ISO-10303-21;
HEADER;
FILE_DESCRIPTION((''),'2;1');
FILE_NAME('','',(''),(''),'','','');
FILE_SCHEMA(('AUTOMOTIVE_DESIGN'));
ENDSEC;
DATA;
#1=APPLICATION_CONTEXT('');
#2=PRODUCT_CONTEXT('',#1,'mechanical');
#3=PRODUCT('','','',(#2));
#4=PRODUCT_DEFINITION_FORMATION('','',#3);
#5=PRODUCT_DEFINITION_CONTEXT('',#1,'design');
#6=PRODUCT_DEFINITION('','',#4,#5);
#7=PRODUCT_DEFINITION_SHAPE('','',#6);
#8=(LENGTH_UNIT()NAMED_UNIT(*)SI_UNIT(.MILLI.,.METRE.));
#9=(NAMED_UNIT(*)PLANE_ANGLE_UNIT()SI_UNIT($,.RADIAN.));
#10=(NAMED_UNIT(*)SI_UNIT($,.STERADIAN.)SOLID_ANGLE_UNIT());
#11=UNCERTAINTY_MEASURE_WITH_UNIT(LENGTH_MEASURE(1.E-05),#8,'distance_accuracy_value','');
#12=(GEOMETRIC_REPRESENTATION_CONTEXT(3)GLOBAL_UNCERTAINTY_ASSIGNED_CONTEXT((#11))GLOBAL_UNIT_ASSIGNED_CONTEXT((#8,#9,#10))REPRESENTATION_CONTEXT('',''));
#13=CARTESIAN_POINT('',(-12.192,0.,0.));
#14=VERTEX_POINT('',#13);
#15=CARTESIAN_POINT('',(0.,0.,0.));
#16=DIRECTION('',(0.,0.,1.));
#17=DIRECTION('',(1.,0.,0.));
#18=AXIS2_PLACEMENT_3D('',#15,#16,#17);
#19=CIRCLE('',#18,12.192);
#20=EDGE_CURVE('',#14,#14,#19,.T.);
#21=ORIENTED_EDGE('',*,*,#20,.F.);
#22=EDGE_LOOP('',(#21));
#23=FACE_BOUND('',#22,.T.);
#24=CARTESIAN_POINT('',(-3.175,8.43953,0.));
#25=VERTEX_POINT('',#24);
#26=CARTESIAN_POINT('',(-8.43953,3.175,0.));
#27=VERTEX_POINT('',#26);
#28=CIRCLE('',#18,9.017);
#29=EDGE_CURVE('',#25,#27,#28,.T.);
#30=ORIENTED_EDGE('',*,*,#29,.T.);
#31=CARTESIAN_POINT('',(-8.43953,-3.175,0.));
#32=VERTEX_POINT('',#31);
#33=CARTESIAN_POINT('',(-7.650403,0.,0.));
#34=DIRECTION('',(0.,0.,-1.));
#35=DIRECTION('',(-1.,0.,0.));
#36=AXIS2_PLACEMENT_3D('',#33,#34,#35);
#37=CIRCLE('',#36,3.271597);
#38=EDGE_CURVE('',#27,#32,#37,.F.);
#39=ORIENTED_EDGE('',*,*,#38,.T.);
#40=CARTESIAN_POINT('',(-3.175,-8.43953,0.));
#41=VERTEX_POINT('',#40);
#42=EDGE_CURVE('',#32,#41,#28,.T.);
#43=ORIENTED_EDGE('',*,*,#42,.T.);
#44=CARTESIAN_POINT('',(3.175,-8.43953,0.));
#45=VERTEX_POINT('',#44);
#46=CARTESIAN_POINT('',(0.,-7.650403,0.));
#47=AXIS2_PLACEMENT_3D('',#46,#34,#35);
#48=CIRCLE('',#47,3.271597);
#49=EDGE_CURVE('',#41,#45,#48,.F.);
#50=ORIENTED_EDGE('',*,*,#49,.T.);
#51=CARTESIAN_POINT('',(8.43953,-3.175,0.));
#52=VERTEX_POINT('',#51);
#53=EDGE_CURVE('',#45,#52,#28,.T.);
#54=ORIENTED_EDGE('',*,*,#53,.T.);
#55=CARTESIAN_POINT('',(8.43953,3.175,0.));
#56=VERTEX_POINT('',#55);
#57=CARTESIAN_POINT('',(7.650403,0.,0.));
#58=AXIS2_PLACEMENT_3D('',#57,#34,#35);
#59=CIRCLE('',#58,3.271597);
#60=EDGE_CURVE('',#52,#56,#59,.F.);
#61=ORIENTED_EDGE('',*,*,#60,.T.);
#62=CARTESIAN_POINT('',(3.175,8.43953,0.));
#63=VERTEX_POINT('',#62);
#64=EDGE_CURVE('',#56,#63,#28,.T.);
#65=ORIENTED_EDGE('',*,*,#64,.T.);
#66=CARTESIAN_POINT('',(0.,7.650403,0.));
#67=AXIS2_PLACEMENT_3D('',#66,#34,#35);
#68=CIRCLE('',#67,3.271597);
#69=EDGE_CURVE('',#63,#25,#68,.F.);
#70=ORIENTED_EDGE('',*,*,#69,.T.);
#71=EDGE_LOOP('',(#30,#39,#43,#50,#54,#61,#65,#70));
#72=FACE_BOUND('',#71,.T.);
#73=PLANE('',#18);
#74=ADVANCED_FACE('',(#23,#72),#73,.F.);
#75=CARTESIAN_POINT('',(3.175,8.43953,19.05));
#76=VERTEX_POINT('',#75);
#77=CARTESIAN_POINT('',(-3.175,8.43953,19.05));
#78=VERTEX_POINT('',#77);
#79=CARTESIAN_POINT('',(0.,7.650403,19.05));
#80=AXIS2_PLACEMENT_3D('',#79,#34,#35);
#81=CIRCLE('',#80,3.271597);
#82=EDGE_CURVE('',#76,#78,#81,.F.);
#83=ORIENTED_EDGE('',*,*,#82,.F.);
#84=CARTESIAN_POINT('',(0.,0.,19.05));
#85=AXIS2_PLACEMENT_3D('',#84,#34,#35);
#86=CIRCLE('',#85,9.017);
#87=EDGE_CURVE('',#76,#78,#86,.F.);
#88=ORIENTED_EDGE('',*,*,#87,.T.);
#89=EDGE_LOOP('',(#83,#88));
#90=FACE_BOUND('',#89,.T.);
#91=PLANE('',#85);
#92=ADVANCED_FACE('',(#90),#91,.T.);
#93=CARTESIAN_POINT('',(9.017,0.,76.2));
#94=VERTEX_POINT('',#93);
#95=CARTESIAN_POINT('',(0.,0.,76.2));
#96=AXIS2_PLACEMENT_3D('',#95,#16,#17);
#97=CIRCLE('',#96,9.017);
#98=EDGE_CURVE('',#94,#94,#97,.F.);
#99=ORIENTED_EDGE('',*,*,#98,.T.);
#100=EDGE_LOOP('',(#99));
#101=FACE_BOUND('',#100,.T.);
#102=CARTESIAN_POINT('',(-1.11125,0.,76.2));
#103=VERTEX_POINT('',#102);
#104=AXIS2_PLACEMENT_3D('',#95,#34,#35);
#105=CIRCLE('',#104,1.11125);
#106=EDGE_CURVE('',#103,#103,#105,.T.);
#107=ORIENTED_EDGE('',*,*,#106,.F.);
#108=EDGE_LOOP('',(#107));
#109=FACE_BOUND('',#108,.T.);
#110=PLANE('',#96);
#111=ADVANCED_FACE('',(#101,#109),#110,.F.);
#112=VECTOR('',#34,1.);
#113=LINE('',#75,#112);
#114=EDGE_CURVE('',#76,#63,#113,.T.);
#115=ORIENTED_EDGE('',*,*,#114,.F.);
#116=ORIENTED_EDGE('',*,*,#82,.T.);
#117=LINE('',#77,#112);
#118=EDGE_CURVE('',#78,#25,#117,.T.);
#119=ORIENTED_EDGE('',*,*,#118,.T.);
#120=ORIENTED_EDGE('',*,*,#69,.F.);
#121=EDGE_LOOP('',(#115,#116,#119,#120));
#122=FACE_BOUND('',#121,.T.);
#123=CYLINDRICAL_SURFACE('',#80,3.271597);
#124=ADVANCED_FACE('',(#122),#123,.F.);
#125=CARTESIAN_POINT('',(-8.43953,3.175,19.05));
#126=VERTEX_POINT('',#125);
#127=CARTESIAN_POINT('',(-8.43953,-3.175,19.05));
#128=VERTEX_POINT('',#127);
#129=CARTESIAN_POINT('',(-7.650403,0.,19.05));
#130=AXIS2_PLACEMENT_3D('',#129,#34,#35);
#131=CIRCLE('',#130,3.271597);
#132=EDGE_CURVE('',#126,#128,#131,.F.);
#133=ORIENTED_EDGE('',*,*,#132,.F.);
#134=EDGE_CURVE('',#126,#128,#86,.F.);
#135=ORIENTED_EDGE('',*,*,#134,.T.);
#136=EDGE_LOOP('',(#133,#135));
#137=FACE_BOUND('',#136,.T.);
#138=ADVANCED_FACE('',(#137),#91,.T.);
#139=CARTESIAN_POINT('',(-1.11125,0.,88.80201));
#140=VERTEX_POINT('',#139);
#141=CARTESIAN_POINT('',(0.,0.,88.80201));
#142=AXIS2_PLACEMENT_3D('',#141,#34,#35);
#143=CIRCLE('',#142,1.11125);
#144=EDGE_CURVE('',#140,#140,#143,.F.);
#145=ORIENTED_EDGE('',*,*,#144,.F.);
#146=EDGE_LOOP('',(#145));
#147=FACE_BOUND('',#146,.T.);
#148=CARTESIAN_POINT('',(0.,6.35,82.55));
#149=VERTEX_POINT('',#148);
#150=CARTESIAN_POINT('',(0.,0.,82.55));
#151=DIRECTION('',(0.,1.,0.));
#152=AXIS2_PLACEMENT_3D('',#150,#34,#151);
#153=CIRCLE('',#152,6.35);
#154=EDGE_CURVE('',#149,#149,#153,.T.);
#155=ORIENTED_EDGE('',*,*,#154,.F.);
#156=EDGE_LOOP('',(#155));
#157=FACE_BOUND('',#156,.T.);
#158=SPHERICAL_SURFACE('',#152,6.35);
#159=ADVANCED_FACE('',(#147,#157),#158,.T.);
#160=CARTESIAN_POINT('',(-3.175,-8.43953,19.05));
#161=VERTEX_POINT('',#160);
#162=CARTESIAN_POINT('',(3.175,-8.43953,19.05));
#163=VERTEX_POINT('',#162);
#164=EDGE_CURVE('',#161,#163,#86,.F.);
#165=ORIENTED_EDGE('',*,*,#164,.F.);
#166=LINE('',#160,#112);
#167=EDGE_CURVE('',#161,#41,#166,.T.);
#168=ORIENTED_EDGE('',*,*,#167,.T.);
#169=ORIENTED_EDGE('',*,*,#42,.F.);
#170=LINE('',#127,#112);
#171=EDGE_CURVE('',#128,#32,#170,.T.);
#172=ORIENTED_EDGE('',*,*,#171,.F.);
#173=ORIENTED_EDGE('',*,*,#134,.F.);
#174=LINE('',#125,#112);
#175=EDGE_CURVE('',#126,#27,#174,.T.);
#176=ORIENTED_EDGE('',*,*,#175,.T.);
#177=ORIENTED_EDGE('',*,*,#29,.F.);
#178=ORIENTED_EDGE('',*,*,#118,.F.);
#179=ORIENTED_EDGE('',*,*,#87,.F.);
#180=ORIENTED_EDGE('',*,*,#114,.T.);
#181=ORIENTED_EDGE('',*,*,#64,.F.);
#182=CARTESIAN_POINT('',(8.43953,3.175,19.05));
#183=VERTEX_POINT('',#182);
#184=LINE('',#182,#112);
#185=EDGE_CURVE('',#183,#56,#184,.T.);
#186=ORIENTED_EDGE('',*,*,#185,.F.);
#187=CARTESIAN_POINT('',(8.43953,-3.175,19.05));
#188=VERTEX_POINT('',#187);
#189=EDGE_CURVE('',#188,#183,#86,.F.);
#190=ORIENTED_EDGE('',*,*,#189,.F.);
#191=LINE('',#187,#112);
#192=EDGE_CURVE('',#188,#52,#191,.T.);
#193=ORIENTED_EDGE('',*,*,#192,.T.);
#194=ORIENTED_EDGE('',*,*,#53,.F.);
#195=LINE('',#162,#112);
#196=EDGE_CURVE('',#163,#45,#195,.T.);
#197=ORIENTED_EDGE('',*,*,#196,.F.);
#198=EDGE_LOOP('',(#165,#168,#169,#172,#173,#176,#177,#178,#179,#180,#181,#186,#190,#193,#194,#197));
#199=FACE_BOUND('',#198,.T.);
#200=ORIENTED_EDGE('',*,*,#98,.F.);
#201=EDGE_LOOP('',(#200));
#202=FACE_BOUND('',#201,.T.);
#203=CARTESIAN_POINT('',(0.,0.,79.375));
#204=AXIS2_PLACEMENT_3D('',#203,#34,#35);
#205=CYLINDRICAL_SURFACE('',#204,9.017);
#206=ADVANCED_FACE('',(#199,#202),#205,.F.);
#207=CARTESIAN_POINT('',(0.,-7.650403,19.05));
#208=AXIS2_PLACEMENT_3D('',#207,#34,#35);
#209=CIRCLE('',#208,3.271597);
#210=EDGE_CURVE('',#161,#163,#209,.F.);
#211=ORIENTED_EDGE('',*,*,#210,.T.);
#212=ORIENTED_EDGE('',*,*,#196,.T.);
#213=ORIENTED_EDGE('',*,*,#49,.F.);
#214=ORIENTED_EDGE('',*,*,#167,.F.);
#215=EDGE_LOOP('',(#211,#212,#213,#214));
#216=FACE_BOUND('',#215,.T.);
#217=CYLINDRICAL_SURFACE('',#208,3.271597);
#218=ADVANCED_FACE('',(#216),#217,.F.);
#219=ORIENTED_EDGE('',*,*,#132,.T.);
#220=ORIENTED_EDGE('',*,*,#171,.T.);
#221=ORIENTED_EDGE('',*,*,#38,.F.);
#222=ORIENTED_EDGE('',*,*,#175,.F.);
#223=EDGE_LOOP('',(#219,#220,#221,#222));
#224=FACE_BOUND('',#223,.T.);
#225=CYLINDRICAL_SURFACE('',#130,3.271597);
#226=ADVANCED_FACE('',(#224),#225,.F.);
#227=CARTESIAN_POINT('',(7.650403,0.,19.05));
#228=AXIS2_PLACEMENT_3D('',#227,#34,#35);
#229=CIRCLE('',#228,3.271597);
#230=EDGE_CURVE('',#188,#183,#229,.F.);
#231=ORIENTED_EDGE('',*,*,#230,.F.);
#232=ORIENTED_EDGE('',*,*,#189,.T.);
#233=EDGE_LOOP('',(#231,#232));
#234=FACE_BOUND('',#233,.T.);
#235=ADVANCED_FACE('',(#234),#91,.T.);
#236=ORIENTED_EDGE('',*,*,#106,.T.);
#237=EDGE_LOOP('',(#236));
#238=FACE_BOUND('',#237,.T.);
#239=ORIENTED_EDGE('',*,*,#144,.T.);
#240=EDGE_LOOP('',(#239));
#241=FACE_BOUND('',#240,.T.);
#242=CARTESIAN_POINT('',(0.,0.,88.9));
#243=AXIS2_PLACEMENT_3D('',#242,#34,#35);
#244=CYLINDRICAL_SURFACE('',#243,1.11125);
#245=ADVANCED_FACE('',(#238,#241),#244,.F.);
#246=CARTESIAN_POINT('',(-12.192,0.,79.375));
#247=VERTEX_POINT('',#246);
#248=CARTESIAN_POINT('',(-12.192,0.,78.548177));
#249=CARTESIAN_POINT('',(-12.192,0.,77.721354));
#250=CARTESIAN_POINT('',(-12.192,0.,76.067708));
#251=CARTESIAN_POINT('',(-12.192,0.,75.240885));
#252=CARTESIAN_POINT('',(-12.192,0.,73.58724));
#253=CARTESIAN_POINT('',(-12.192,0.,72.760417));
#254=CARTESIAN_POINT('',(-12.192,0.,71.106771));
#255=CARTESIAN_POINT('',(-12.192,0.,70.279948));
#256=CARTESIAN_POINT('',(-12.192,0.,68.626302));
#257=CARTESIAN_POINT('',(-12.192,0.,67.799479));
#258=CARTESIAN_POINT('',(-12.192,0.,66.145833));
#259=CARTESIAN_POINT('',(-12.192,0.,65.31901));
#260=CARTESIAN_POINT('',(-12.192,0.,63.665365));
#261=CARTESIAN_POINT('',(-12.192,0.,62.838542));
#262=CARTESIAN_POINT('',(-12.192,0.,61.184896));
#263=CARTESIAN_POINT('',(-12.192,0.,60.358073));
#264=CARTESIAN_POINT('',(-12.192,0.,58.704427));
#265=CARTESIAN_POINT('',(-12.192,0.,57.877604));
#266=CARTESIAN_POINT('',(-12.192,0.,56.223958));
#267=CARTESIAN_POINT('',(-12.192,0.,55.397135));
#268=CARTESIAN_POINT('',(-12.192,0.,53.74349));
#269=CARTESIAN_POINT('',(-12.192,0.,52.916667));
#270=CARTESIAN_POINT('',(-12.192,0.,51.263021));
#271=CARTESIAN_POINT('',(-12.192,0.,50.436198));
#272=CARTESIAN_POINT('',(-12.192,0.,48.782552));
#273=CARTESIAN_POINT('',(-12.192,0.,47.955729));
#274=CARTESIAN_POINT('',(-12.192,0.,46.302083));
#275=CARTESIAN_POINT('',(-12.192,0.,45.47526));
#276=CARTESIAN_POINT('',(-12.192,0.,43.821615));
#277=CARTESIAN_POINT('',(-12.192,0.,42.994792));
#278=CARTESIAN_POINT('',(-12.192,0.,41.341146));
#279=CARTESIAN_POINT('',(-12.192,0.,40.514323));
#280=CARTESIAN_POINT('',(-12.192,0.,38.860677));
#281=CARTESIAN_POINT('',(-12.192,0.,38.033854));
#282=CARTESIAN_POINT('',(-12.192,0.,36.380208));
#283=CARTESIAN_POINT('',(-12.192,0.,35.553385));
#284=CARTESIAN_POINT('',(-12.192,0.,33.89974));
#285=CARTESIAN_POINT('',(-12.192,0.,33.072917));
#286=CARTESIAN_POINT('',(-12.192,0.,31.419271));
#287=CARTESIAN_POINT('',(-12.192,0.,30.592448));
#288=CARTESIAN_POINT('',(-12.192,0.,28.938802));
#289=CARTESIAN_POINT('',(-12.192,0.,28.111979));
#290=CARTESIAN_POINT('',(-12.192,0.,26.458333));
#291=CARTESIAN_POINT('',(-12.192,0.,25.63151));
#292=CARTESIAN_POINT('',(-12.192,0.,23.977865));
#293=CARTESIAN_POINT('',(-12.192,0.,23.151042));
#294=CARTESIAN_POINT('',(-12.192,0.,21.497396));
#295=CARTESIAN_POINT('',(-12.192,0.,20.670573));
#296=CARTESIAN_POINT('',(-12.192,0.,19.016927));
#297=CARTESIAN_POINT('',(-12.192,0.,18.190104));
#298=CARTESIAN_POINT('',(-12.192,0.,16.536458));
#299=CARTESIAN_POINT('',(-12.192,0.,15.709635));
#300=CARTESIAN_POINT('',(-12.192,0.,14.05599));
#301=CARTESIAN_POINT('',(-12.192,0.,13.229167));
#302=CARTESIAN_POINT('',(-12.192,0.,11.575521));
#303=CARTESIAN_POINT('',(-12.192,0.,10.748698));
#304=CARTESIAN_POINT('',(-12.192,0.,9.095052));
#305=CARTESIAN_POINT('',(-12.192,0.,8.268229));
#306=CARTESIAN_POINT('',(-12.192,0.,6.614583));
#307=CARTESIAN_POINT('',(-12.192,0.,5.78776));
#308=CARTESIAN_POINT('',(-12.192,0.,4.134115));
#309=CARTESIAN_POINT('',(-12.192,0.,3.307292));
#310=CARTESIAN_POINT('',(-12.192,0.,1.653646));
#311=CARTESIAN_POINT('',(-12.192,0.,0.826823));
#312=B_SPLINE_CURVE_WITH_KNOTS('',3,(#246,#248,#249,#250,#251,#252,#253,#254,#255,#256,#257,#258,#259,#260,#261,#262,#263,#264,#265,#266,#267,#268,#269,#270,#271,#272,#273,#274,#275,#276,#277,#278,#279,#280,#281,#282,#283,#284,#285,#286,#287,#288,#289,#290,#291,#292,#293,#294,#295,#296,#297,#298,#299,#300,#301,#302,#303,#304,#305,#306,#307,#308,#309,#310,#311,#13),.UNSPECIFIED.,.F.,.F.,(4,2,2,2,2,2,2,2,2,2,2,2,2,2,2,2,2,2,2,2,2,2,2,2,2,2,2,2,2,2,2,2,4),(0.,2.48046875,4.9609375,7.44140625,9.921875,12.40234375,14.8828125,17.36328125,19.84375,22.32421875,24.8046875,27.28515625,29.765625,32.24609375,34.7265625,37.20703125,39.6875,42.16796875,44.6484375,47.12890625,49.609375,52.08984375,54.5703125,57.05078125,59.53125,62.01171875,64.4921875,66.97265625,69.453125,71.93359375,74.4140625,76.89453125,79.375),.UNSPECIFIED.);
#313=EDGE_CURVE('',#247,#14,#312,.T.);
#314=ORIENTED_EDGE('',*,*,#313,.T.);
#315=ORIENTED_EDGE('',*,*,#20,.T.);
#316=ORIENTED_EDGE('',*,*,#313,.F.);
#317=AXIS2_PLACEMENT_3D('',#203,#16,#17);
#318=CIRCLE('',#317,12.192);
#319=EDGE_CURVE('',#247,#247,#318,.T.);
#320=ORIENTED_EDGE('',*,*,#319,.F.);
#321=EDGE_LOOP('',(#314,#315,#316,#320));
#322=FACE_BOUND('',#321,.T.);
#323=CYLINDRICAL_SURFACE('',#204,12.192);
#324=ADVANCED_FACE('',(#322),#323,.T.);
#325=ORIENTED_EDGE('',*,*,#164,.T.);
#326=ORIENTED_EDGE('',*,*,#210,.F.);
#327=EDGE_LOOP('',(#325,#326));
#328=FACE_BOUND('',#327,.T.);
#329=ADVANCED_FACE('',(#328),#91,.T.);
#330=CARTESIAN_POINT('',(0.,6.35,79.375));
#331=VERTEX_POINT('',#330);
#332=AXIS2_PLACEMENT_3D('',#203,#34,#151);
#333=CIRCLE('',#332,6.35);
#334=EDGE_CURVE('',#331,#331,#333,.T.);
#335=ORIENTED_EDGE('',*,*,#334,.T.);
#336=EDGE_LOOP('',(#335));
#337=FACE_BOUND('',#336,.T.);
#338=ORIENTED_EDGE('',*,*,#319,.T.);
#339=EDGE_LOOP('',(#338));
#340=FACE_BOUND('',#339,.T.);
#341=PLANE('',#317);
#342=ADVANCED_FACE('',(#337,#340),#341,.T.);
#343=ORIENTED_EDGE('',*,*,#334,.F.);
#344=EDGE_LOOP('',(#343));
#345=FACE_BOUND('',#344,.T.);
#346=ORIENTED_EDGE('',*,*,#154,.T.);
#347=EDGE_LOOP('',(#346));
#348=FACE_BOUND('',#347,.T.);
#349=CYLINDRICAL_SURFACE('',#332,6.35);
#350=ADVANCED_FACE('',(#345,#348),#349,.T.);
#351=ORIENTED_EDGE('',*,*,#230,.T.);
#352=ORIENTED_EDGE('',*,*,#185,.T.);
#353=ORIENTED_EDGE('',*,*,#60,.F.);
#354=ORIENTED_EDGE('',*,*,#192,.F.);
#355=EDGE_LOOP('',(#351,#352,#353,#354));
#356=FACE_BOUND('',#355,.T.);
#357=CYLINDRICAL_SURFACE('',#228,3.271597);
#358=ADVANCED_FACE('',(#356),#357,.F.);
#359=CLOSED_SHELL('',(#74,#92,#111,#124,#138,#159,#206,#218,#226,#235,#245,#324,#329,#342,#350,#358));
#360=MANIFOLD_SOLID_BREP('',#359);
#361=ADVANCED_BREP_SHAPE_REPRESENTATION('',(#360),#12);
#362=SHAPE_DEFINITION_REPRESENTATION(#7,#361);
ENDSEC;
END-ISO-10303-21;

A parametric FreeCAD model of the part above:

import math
import FreeCAD as App
import Part
import Sketcher
Q = App.Units.Quantity

doc = App.newDocument("Part")
body = doc.addObject("PartDesign::Body", "Body")

# Sketch on XY plane
sketch1 = body.newObject("Sketcher::SketchObject", "Sketch")
sketch1.AttachmentSupport = (doc.getObject("XY_Plane"), [""])
sketch1.MapMode = "FlatFace"
sketch1.addGeometry([
    Part.Circle(App.Vector(0, 0, 0), App.Vector(0, 0, 1), 12),
    Part.Circle(App.Vector(0, 0, 0), App.Vector(0, 0, 1), 9),
], False)
sketch1.addConstraint([
    Sketcher.Constraint("Coincident", 0, 3, -1, 1),
    Sketcher.Constraint("Coincident", 1, 3, -1, 1),
    Sketcher.Constraint("Diameter", 0, Q("0.96 in")),
    Sketcher.Constraint("Diameter", 1, Q("0.71 in")),
])
pad1 = body.newObject("PartDesign::Pad", "Pad")
pad1.Profile = sketch1
pad1.Length = Q("3.125 in")

# Sketch on XY plane
sketch2 = body.newObject("Sketcher::SketchObject", "Sketch001")
sketch2.AttachmentSupport = (doc.getObject("XY_Plane"), [""])
sketch2.MapMode = "FlatFace"
sketch2.addGeometry([
    Part.ArcOfCircle(Part.Circle(App.Vector(0, 0, 0), App.Vector(0, 0, 1), 9), math.radians(-21), math.radians(21)),  # 0
    Part.ArcOfCircle(Part.Circle(App.Vector(7.7, 0, 0), App.Vector(0, 0, 1), 3.3), math.radians(-76), math.radians(76)),  # 1
    Part.ArcOfCircle(Part.Circle(App.Vector(0, 0, 0), App.Vector(0, 0, 1), 9), math.radians(69), math.radians(111)),  # 2
    Part.ArcOfCircle(Part.Circle(App.Vector(0, 7.7, 0), App.Vector(0, 0, 1), 3.3), math.radians(14), math.radians(166)),  # 3
    Part.ArcOfCircle(Part.Circle(App.Vector(-7.7, 0, 0), App.Vector(0, 0, 1), 3.3), math.radians(104), math.radians(256)),  # 4
    Part.ArcOfCircle(Part.Circle(App.Vector(0, 0, 0), App.Vector(0, 0, 1), 9), math.radians(159), math.radians(180)),  # 5
    Part.ArcOfCircle(Part.Circle(App.Vector(0, 0, 0), App.Vector(0, 0, 1), 9), math.radians(180), math.radians(201)),  # 6
    Part.ArcOfCircle(Part.Circle(App.Vector(0, -7.7, 0), App.Vector(0, 0, 1), 3.3), math.radians(-166), math.radians(-14)),  # 7
    Part.ArcOfCircle(Part.Circle(App.Vector(0, 0, 0), App.Vector(0, 0, 1), 9), math.radians(-111), math.radians(-69)),  # 8
], False)
sketch2.addConstraint([
    Sketcher.Constraint("Coincident", 0, 1, 1, 1),
    Sketcher.Constraint("Coincident", 1, 2, 0, 2),
    Sketcher.Constraint("Coincident", 2, 1, 3, 1),
    Sketcher.Constraint("Coincident", 3, 2, 2, 2),
    Sketcher.Constraint("Coincident", 4, 1, 5, 1),
    Sketcher.Constraint("Tangent", 5, 2, 6, 1),
    Sketcher.Constraint("Coincident", 6, 2, 4, 2),
    Sketcher.Constraint("Coincident", 7, 1, 8, 1),
    Sketcher.Constraint("Coincident", 8, 2, 7, 2),
    Sketcher.Constraint("Coincident", 0, 3, -1, 1),
    Sketcher.Constraint("Coincident", 2, 3, -1, 1),
    Sketcher.Constraint("Coincident", 5, 3, -1, 1),
    Sketcher.Constraint("Coincident", 8, 3, -1, 1),
    Sketcher.Constraint("Equal", 0, 2),
    Sketcher.Constraint("Equal", 1, 3),
    Sketcher.Constraint("Equal", 3, 4),
    Sketcher.Constraint("Equal", 2, 5),
    Sketcher.Constraint("Equal", 5, 6),
    Sketcher.Constraint("Equal", 4, 7),
    Sketcher.Constraint("Equal", 6, 8),
    Sketcher.Constraint("Symmetric", 1, 3, 4, 3, -1, 1),
    Sketcher.Constraint("Symmetric", 3, 3, 7, 3, -1, 1),
    Sketcher.Constraint("PointOnObject", 1, 3, -1),
    Sketcher.Constraint("PointOnObject", 3, 3, -2),
    Sketcher.Constraint("PointOnObject", 5, 2, -1),
    Sketcher.Constraint("Radius", 0, Q("0.355 in")),
    Sketcher.Constraint("DistanceY", 0, 1, 1, 2, Q("0.25 in")),
    Sketcher.Constraint("DistanceX", 3, 2, 2, 1, Q("0.25 in")),
    Sketcher.Constraint("Radius", 1, 3.271597),
])
pocket1 = body.newObject("PartDesign::Pocket", "Pocket")
pocket1.Profile = sketch2
pocket1.Length = Q("0.75 in")
pocket1.Reversed = True

# Sketch on XY plane
sketch3 = body.newObject("Sketcher::SketchObject", "Sketch002")
sketch3.AttachmentSupport = (doc.getObject("XY_Plane"), [""])
sketch3.MapMode = "FlatFace"
sketch3.AttachmentOffset = App.Placement(App.Vector(0, 0, 3 * 25.4), App.Rotation())
sketch3.addGeometry(Part.Circle(App.Vector(0, 0, 0), App.Vector(0, 0, 1), 9), False)
sketch3.addConstraint([
    Sketcher.Constraint("Coincident", 0, 3, -1, 1),
    Sketcher.Constraint("Diameter", 0, Q("0.71 in")),
])
pad2 = body.newObject("PartDesign::Pad", "Pad001")
pad2.Profile = sketch3
pad2.Length = Q("0.125 in")

# Sketch on YZ plane
sketch4 = body.newObject("Sketcher::SketchObject", "Sketch003")
sketch4.AttachmentSupport = (doc.getObject("YZ_Plane"), [""])
sketch4.MapMode = "FlatFace"
sketch4.addGeometry([
    Part.LineSegment(App.Vector(0, 88.9, 0), App.Vector(0, 79.4, 0)),
    Part.LineSegment(App.Vector(0, 79.4, 0), App.Vector(6.3, 79.4, 0)),
    Part.LineSegment(App.Vector(6.3, 79.4, 0), App.Vector(6.3, 82.5, 0)),
    Part.ArcOfCircle(Part.Circle(App.Vector(0, 82.6, 0), App.Vector(0, 0, 1), 6.3), math.radians(0), math.radians(90)),
], False)
sketch4.addConstraint([
    Sketcher.Constraint("Coincident", 0, 2, 1, 1),
    Sketcher.Constraint("Coincident", 1, 2, 2, 1),
    Sketcher.Constraint("Tangent", 2, 2, 3, 1),
    Sketcher.Constraint("Coincident", 3, 2, 0, 1),
    Sketcher.Constraint("Vertical", 0),
    Sketcher.Constraint("Horizontal", 1),
    Sketcher.Constraint("Vertical", 2),
    Sketcher.Constraint("PointOnObject", 3, 3, -2),
    Sketcher.Constraint("PointOnObject", 0, 2, -2),
    Sketcher.Constraint("Radius", 3, Q("0.25 in")),
    Sketcher.Constraint("DistanceY", -1, 1, 3, 2, Q("3.5 in")),
    Sketcher.Constraint("DistanceY", 0, 2, 0, 1, Q("0.375 in")),
])
revolution = body.newObject("PartDesign::Revolution", "Revolution")
revolution.Profile = sketch4
revolution.ReferenceAxis = (sketch4, ["V_Axis"])
revolution.Angle = 360

# Sketch on XY plane
sketch5 = body.newObject("Sketcher::SketchObject", "Sketch004")
sketch5.AttachmentSupport = (doc.getObject("XY_Plane"), [""])
sketch5.MapMode = "FlatFace"
sketch5.AttachmentOffset = App.Placement(App.Vector(0, 0, 3 * 25.4), App.Rotation())
sketch5.addGeometry(Part.Circle(App.Vector(0, 0, 0), App.Vector(0, 0, 1), 1.1), False)
sketch5.addConstraint([
    Sketcher.Constraint("Coincident", 0, 3, -1, 1),
    Sketcher.Constraint("Diameter", 0, Q("0.0875 in")),
])
pocket2 = body.newObject("PartDesign::Pocket", "Pocket001")
pocket2.Profile = sketch5
pocket2.Type = "ThroughAll"
pocket2.Reversed = True

doc.recompute()
